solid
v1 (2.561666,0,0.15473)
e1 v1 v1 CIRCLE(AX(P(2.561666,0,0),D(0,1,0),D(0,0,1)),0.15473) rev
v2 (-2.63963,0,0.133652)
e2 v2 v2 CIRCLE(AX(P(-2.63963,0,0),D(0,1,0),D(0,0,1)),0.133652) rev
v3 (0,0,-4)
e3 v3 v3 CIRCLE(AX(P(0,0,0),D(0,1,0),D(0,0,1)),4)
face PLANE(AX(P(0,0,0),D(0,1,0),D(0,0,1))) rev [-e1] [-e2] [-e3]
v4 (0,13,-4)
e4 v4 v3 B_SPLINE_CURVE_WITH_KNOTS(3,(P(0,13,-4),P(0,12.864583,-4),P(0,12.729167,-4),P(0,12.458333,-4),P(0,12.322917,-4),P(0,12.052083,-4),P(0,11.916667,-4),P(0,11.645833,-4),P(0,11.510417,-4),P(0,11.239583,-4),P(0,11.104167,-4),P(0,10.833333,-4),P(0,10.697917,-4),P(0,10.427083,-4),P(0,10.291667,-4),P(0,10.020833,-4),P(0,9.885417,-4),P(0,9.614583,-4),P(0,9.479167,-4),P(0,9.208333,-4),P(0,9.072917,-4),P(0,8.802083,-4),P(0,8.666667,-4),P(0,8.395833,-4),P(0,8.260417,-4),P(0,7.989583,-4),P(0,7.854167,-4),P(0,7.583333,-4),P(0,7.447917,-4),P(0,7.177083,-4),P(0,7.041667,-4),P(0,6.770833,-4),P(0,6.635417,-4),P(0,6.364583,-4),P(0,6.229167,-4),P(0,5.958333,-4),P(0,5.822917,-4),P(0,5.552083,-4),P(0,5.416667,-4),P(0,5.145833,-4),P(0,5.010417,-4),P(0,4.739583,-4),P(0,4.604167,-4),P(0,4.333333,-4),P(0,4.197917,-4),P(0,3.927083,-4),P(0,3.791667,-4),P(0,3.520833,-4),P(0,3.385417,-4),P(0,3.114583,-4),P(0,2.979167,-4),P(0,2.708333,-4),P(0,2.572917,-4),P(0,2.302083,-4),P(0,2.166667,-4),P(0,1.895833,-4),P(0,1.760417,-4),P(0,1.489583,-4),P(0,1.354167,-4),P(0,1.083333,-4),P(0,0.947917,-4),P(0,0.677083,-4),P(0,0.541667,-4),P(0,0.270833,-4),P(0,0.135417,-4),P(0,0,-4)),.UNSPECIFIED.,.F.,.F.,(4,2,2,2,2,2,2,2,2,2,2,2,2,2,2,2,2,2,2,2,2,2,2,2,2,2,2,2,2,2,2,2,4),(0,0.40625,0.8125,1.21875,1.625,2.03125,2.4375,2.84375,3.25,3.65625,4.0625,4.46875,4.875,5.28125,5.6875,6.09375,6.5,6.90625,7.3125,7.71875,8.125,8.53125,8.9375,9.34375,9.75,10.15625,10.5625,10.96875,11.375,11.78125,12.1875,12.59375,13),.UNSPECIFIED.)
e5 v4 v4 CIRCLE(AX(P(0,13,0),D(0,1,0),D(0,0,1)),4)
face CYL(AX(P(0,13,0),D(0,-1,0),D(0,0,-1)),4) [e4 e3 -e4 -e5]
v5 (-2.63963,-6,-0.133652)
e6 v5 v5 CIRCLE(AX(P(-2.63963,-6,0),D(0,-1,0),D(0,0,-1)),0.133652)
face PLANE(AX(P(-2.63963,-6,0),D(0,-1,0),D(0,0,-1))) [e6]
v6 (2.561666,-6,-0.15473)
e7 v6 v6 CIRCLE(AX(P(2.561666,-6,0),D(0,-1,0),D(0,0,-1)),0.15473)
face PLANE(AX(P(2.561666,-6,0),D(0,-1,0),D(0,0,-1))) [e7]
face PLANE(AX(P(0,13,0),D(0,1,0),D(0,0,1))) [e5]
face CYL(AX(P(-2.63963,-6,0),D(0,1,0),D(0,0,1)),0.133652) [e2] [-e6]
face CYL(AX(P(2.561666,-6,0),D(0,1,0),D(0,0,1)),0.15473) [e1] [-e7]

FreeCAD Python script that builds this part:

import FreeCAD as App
import Part
import Sketcher

V = App.Vector
Q = App.Units.Quantity

doc = App.newDocument("Part")
params = doc.addObject("Spreadsheet::Sheet", "Params")
for row, (alias, value) in enumerate([
    ("sketch1_diameter", "8 mm"),
    ("pad1_length", "13 mm"),
    ("pad2_length", "6 mm"),
], start=1):
    params.set(f"A{row}", alias)
    params.set(f"B{row}", "=" + value)
    params.setAlias(f"B{row}", alias)

body = doc.addObject("PartDesign::Body", "Body")

# Sketch on XZ plane
sketch1 = body.newObject("Sketcher::SketchObject", "Sketch")
sketch1.AttachmentSupport = (doc.getObject("XZ_Plane"), [""])
sketch1.MapMode = "FlatFace"
sketch1.addGeometry(Part.Circle(V(0, 0, 0), V(0, 0, 1), 4), False)
sketch1.addConstraint(Sketcher.Constraint("Coincident", 0, 3, -1, 1))
sketch1.addConstraint(Sketcher.Constraint("Diameter", 0, Q("8 mm")))
sketch1.setExpression("Constraints[1]", "Params.sketch1_diameter")
pad1 = body.newObject("PartDesign::Pad", "Pad")
pad1.Profile = sketch1
pad1.setExpression("Length", "Params.pad1_length")
pad1.Reversed = True

# Sketch on XZ plane
sketch2 = body.newObject("Sketcher::SketchObject", "Sketch001")
sketch2.AttachmentSupport = (doc.getObject("XZ_Plane"), [""])
sketch2.MapMode = "FlatFace"
sketch2.addGeometry(Part.Circle(V(-2.64, 0, 0), V(0, 0, 1), 0.13), False)
sketch2.addGeometry(Part.Circle(V(2.56, 0, 0), V(0, 0, 1), 0.15), False)
sketch2.addConstraint(Sketcher.Constraint("PointOnObject", 0, 3, -1))
sketch2.addConstraint(Sketcher.Constraint("PointOnObject", 1, 3, -1))
sketch2.addConstraint(Sketcher.Constraint("Diameter", 1, Q("0.309459 mm")))
sketch2.addConstraint(Sketcher.Constraint("Diameter", 0, Q("0.267304 mm")))
sketch2.addConstraint(Sketcher.Constraint("DistanceX", 0, 3, -1, 1, Q("2.63963 mm")))
sketch2.addConstraint(Sketcher.Constraint("DistanceX", -1, 1, 1, 3, Q("2.561666 mm")))
pad2 = body.newObject("PartDesign::Pad", "Pad001")
pad2.Profile = sketch2
pad2.setExpression("Length", "Params.pad2_length")

doc.recompute()
